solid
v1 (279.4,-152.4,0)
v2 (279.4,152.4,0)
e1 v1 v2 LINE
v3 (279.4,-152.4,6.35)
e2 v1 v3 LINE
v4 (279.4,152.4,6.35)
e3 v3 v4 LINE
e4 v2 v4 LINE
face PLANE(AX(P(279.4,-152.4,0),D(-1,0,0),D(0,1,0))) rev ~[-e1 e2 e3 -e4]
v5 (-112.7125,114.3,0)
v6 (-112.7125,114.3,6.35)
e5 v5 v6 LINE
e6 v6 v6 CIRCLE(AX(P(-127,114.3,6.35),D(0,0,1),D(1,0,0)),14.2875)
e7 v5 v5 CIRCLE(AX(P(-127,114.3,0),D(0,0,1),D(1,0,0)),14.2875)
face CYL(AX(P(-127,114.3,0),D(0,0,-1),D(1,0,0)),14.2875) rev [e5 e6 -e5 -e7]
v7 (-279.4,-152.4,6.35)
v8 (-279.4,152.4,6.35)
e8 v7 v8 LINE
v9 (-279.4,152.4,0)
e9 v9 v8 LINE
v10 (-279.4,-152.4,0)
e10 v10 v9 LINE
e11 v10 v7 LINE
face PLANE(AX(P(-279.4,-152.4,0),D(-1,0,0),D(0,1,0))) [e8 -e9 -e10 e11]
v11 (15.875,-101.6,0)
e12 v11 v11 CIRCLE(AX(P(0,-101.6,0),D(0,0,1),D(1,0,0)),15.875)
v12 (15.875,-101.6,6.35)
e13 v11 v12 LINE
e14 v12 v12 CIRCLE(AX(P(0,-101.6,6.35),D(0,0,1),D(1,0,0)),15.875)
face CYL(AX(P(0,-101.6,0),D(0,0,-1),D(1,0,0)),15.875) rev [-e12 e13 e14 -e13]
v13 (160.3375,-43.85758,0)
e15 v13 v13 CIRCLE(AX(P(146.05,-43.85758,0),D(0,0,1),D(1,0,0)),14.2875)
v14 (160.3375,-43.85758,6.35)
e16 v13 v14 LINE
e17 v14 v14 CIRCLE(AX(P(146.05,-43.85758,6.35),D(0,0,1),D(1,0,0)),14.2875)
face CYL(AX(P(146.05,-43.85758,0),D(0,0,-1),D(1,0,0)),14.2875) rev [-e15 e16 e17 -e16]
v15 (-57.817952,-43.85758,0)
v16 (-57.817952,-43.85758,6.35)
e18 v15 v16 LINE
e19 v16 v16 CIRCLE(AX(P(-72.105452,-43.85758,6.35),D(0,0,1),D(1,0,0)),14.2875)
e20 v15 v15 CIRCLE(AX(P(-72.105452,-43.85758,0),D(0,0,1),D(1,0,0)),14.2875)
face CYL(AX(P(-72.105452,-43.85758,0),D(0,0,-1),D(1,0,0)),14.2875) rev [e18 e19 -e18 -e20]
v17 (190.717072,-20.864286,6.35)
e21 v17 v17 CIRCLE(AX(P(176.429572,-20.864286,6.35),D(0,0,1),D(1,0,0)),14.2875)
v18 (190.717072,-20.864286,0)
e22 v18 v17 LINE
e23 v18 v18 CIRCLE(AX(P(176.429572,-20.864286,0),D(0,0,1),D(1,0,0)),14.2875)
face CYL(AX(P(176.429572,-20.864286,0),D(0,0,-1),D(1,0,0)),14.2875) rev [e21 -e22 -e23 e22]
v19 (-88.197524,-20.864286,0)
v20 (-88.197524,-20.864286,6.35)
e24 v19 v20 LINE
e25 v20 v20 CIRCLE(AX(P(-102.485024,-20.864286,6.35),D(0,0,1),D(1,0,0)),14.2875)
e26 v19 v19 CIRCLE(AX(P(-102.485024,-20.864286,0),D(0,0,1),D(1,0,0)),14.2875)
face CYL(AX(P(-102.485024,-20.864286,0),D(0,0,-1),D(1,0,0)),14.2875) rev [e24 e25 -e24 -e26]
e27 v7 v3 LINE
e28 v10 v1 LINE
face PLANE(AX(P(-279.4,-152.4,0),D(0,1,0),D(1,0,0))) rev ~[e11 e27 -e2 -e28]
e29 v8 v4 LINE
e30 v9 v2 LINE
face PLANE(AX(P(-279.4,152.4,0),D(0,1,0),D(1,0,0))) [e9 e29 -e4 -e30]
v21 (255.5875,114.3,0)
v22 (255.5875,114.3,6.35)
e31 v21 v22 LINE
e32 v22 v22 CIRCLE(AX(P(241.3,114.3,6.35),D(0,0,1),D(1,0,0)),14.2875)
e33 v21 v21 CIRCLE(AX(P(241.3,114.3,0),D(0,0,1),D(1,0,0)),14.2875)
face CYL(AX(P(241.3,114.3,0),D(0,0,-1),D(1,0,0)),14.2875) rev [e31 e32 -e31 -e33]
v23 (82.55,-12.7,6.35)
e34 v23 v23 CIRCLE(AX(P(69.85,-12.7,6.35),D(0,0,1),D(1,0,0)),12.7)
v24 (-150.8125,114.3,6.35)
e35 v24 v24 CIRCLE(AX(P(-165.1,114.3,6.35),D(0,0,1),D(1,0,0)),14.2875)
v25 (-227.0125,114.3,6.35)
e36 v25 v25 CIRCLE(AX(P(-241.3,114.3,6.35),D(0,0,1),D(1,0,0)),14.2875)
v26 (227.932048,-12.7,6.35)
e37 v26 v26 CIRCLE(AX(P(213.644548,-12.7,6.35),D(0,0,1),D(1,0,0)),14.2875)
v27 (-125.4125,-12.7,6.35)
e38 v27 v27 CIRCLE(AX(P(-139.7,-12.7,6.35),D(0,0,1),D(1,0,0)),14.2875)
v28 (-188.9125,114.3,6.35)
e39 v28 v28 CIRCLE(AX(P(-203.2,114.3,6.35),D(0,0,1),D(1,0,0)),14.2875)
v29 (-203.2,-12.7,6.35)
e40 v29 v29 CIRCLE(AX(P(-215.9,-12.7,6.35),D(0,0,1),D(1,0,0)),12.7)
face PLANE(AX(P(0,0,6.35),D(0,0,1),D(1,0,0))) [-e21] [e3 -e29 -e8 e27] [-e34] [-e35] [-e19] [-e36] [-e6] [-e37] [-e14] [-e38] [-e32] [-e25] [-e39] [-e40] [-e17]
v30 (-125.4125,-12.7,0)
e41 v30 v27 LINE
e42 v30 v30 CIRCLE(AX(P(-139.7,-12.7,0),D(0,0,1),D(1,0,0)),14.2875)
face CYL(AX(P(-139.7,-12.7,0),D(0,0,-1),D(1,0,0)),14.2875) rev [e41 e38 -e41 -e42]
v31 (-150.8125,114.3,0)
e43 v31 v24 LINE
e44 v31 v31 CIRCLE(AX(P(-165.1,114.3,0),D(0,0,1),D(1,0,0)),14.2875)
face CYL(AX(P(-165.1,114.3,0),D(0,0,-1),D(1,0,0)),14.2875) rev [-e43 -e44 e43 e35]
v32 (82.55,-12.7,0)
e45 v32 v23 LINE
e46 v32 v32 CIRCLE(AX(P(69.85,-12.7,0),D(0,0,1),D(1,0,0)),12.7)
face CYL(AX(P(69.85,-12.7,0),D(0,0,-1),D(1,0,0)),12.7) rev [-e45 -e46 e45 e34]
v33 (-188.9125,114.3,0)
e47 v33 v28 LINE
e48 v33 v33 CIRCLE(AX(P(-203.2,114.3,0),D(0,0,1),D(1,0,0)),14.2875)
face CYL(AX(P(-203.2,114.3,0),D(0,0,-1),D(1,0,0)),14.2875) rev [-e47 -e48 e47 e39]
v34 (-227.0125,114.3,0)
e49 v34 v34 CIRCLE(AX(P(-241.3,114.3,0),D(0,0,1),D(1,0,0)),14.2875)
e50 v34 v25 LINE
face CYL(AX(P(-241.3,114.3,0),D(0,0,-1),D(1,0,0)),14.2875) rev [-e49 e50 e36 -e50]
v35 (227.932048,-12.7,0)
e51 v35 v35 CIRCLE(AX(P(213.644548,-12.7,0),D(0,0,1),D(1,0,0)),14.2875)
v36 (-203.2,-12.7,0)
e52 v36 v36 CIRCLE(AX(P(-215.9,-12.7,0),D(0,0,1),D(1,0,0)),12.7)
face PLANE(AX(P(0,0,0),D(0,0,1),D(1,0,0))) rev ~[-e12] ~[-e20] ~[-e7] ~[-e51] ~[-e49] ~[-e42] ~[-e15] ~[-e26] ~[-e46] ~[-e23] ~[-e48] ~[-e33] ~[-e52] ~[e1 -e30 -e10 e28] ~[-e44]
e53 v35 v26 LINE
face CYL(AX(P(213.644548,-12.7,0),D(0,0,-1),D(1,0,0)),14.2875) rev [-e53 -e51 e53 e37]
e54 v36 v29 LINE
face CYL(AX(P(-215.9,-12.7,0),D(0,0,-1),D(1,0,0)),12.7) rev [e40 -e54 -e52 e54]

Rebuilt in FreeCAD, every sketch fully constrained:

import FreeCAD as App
import Part
import Sketcher
Q = App.Units.Quantity


def add_polygon(sketch, points):
    """Adds a closed chain of lines whose ends are joined by coincident constraints."""
    first, n = sketch.GeometryCount, len(points)
    for a, b in zip(points, points[1:] + points[:1]):
        sketch.addGeometry(Part.LineSegment(App.Vector(*a, 0), App.Vector(*b, 0)), False)
    for i in range(n):
        sketch.addConstraint(Sketcher.Constraint("Coincident", first + i, 2, first + (i + 1) % n, 1))

doc = App.newDocument("Part")
body = doc.addObject("PartDesign::Body", "Body")

sketch1 = body.newObject("Sketcher::SketchObject", "Sketch")
sketch1.AttachmentSupport = (doc.getObject("XY_Plane"), [""])
sketch1.MapMode = "FlatFace"
add_polygon(sketch1, [(-279.4, 152.4), (-279.4, -152.4), (279.4, -152.4), (279.4, 152.4)])
sketch1.addGeometry(Part.Circle(App.Vector(0, -101.6, 0), App.Vector(0, 0, 1), 15.875), False)
sketch1.addGeometry(Part.Circle(App.Vector(-215.9, -12.7, 0), App.Vector(0, 0, 1), 12.7), False)
sketch1.addGeometry(Part.Circle(App.Vector(-139.7, -12.7, 0), App.Vector(0, 0, 1), 14.2875), False)
sketch1.addGeometry(Part.Circle(App.Vector(-72.105452, -43.85758, 0), App.Vector(0, 0, 1), 14.2875), False)
sketch1.addGeometry(Part.Circle(App.Vector(-102.485024, -20.864286, 0), App.Vector(0, 0, 1), 14.2875), False)
sketch1.addGeometry(Part.Circle(App.Vector(69.85, -12.7, 0), App.Vector(0, 0, 1), 12.7), False)
sketch1.addGeometry(Part.Circle(App.Vector(146.05, -43.85758, 0), App.Vector(0, 0, 1), 14.2875), False)
sketch1.addGeometry(Part.Circle(App.Vector(176.429572, -20.864286, 0), App.Vector(0, 0, 1), 14.2875), False)
sketch1.addGeometry(Part.Circle(App.Vector(213.644548, -12.7, 0), App.Vector(0, 0, 1), 14.2875), False)
sketch1.addGeometry(Part.Circle(App.Vector(-241.3, 114.3, 0), App.Vector(0, 0, 1), 14.2875), False)
sketch1.addGeometry(Part.Circle(App.Vector(-203.2, 114.3, 0), App.Vector(0, 0, 1), 14.2875), False)
sketch1.addGeometry(Part.Circle(App.Vector(-165.1, 114.3, 0), App.Vector(0, 0, 1), 14.2875), False)
sketch1.addGeometry(Part.Circle(App.Vector(-127, 114.3, 0), App.Vector(0, 0, 1), 14.2875), False)
sketch1.addGeometry(Part.Circle(App.Vector(241.3, 114.3, 0), App.Vector(0, 0, 1), 14.2875), False)
sketch1.addConstraint(Sketcher.Constraint("Vertical", 0))
sketch1.addConstraint(Sketcher.Constraint("Horizontal", 1))
sketch1.addConstraint(Sketcher.Constraint("Vertical", 2))
sketch1.addConstraint(Sketcher.Constraint("Horizontal", 3))
sketch1.addConstraint(Sketcher.Constraint("Equal", 6, 7))
sketch1.addConstraint(Sketcher.Constraint("Equal", 7, 8))
sketch1.addConstraint(Sketcher.Constraint("Equal", 5, 9))
sketch1.addConstraint(Sketcher.Constraint("Equal", 8, 10))
sketch1.addConstraint(Sketcher.Constraint("Equal", 10, 11))
sketch1.addConstraint(Sketcher.Constraint("Equal", 11, 12))
sketch1.addConstraint(Sketcher.Constraint("Equal", 12, 13))
sketch1.addConstraint(Sketcher.Constraint("Equal", 13, 14))
sketch1.addConstraint(Sketcher.Constraint("Equal", 14, 15))
sketch1.addConstraint(Sketcher.Constraint("Equal", 15, 16))
sketch1.addConstraint(Sketcher.Constraint("Equal", 16, 17))
sketch1.addConstraint(Sketcher.Constraint("Symmetric", 0, 2, 2, 2, -1, 1))
sketch1.addConstraint(Sketcher.Constraint("Symmetric", 13, 3, 17, 3, -2))
sketch1.addConstraint(Sketcher.Constraint("PointOnObject", 4, 3, -2))
sketch1.addConstraint(Sketcher.Constraint("Horizontal", 5, 3, 6, 3))
sketch1.addConstraint(Sketcher.Constraint("Horizontal", 6, 3, 9, 3))
sketch1.addConstraint(Sketcher.Constraint("Horizontal", 7, 3, 10, 3))
sketch1.addConstraint(Sketcher.Constraint("Horizontal", 8, 3, 11, 3))
sketch1.addConstraint(Sketcher.Constraint("Horizontal", 9, 3, 12, 3))
sketch1.addConstraint(Sketcher.Constraint("Horizontal", 13, 3, 14, 3))
sketch1.addConstraint(Sketcher.Constraint("Horizontal", 14, 3, 15, 3))
sketch1.addConstraint(Sketcher.Constraint("Horizontal", 15, 3, 16, 3))
sketch1.addConstraint(Sketcher.Constraint("Diameter", 5, Q("1 in")))
sketch1.addConstraint(Sketcher.Constraint("Diameter", 4, Q("1.25 in")))
sketch1.addConstraint(Sketcher.Constraint("DistanceX", 1, 1, 1, 2, Q("22 in")))
sketch1.addConstraint(Sketcher.Constraint("DistanceY", 0, 2, 0, 1, Q("12 in")))
sketch1.addConstraint(Sketcher.Constraint("Diameter", 6, Q("1.125 in")))
sketch1.addConstraint(Sketcher.Constraint("DistanceY", 4, 3, -1, 1, Q("4 in")))
sketch1.addConstraint(Sketcher.Constraint("DistanceX", 14, 3, -1, 1, Q("8 in")))
sketch1.addConstraint(Sketcher.Constraint("DistanceX", 16, 3, -1, 1, Q("5 in")))
sketch1.addConstraint(Sketcher.Constraint("DistanceX", 5, 3, 6, 3, Q("3 in")))
sketch1.addConstraint(Sketcher.Constraint("DistanceX", 9, 3, 10, 3, Q("3 in")))
sketch1.addConstraint(Sketcher.Constraint("DistanceX", 13, 3, 5, 3, Q("1 in")))
sketch1.addConstraint(Sketcher.Constraint("DistanceY", 5, 3, 13, 3, Q("5 in")))
sketch1.addConstraint(Sketcher.Constraint("DistanceX", 13, 3, 15, 3, Q("3 in")))
sketch1.addConstraint(Sketcher.Constraint("DistanceX", 5, 3, -1, 1, Q("8.5 in")))
sketch1.addConstraint(Sketcher.Constraint("DistanceY", 5, 3, -1, 1, Q("0.5 in")))
sketch1.addConstraint(Sketcher.Constraint("DistanceX", -1, 1, 9, 3, Q("2.75 in")))
sketch1.addConstraint(Sketcher.Constraint("DistanceX", 7, 3, 12, 3, Q("11.25 in")))
sketch1.addConstraint(Sketcher.Constraint("DistanceX", 7, 3, -1, 1, 72.105452))
sketch1.addConstraint(Sketcher.Constraint("DistanceY", 7, 3, -1, 1, 43.85758))
sketch1.addConstraint(Sketcher.Constraint("DistanceX", -1, 1, 11, 3, 176.429572))
sketch1.addConstraint(Sketcher.Constraint("DistanceX", 8, 3, 7, 3, 30.379572))
sketch1.addConstraint(Sketcher.Constraint("DistanceY", 8, 3, -1, 1, 20.864286))
pad1 = body.newObject("PartDesign::Pad", "Pad")
pad1.Profile = sketch1
pad1.Length = Q("0.25 in")

doc.recompute()
